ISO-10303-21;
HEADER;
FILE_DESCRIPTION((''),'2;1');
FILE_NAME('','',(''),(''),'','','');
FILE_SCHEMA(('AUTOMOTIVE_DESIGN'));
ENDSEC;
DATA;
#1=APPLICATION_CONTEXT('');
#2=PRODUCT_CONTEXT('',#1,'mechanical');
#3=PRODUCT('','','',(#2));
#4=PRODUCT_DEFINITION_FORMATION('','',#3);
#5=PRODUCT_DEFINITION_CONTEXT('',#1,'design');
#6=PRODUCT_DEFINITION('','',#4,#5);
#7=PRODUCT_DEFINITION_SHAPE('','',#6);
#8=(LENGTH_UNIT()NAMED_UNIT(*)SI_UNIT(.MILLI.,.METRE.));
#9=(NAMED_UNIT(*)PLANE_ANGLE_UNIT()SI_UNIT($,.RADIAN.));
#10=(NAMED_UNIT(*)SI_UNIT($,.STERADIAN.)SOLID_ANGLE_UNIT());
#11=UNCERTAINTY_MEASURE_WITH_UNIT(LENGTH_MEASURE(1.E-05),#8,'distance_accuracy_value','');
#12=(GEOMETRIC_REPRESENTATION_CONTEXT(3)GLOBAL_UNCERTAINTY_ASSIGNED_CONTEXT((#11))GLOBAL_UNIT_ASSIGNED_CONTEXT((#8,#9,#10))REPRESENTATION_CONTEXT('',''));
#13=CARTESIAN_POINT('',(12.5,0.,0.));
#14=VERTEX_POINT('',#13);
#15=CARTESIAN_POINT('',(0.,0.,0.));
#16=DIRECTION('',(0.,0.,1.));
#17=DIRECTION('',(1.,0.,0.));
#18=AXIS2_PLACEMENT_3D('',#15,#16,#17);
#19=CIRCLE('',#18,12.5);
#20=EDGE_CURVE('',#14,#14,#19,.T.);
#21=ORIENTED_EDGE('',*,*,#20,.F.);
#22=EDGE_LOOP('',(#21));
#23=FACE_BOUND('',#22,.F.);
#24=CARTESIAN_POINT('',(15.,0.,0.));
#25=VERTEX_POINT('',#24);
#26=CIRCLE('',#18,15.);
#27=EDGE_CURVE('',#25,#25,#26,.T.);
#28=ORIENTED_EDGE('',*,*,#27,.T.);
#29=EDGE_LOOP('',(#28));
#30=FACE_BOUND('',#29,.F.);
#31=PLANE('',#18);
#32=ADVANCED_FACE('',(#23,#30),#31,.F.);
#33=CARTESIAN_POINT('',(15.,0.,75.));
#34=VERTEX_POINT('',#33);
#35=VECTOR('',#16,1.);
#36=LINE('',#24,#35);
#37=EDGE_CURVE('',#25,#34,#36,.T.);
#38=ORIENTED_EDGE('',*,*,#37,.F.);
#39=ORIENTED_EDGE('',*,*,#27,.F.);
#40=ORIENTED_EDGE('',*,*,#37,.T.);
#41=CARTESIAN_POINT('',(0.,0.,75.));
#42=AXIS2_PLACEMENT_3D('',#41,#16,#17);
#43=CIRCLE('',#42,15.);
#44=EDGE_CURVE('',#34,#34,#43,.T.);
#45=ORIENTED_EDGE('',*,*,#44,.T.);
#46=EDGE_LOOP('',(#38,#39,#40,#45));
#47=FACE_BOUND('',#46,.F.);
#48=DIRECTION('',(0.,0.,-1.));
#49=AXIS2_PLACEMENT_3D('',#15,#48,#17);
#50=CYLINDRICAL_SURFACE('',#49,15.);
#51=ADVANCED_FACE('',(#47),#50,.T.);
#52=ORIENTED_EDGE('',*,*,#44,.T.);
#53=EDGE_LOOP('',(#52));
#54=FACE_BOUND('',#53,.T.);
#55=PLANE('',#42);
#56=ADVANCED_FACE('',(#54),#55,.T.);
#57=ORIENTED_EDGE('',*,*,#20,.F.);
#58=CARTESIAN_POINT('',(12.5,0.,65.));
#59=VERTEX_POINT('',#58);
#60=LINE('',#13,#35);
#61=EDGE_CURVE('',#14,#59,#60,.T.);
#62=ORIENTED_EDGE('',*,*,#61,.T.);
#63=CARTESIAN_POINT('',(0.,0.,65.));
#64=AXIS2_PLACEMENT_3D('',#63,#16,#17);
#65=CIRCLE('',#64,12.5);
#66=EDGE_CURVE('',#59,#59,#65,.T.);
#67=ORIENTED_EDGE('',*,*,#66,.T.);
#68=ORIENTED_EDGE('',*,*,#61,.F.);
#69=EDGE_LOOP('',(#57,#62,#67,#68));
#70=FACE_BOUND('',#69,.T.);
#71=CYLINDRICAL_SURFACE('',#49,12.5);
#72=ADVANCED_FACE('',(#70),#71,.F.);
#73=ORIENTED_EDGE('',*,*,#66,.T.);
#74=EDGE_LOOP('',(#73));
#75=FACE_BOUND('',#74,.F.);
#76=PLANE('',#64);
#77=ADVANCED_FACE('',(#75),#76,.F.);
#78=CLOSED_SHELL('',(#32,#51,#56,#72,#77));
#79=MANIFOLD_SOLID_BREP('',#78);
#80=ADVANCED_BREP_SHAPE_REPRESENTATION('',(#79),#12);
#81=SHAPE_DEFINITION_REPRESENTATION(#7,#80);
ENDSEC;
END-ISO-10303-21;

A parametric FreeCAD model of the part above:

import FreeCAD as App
import Part
import Sketcher
from FreeCAD import Vector
Q = App.Units.Quantity

doc = App.newDocument("Part")
body = doc.addObject("PartDesign::Body", "Body")

sketch1 = doc.addObject("Sketcher::SketchObject", "Sketch")
body.addObject(sketch1)
sketch1.AttachmentSupport = (doc.XY_Plane, [""])
sketch1.MapMode = "FlatFace"
sketch1.addGeometry(Part.Circle(Vector(0, 0, 0), Vector(0, 0, 1), 15), False)
sketch1.addConstraint([
    Sketcher.Constraint("Coincident", 0, 3, -1, 1),
    Sketcher.Constraint("Diameter", 0, Q("30 mm")),
])
pad1 = doc.addObject("PartDesign::Pad", "Pad")
body.addObject(pad1)
pad1.Profile = sketch1
pad1.Length = 75

sketch2 = doc.addObject("Sketcher::SketchObject", "Sketch001")
body.addObject(sketch2)
sketch2.AttachmentSupport = (doc.XY_Plane, [""])
sketch2.MapMode = "FlatFace"
sketch2.addGeometry(Part.Circle(Vector(0, 0, 0), Vector(0, 0, 1), 12.5), False)
sketch2.addConstraint([
    Sketcher.Constraint("Coincident", 0, 3, -1, 1),
    Sketcher.Constraint("Diameter", 0, Q("25 mm")),
])
pocket1 = doc.addObject("PartDesign::Pocket", "Pocket")
body.addObject(pocket1)
pocket1.Profile = sketch2
pocket1.Length = 65
pocket1.Reversed = True

doc.recompute()
